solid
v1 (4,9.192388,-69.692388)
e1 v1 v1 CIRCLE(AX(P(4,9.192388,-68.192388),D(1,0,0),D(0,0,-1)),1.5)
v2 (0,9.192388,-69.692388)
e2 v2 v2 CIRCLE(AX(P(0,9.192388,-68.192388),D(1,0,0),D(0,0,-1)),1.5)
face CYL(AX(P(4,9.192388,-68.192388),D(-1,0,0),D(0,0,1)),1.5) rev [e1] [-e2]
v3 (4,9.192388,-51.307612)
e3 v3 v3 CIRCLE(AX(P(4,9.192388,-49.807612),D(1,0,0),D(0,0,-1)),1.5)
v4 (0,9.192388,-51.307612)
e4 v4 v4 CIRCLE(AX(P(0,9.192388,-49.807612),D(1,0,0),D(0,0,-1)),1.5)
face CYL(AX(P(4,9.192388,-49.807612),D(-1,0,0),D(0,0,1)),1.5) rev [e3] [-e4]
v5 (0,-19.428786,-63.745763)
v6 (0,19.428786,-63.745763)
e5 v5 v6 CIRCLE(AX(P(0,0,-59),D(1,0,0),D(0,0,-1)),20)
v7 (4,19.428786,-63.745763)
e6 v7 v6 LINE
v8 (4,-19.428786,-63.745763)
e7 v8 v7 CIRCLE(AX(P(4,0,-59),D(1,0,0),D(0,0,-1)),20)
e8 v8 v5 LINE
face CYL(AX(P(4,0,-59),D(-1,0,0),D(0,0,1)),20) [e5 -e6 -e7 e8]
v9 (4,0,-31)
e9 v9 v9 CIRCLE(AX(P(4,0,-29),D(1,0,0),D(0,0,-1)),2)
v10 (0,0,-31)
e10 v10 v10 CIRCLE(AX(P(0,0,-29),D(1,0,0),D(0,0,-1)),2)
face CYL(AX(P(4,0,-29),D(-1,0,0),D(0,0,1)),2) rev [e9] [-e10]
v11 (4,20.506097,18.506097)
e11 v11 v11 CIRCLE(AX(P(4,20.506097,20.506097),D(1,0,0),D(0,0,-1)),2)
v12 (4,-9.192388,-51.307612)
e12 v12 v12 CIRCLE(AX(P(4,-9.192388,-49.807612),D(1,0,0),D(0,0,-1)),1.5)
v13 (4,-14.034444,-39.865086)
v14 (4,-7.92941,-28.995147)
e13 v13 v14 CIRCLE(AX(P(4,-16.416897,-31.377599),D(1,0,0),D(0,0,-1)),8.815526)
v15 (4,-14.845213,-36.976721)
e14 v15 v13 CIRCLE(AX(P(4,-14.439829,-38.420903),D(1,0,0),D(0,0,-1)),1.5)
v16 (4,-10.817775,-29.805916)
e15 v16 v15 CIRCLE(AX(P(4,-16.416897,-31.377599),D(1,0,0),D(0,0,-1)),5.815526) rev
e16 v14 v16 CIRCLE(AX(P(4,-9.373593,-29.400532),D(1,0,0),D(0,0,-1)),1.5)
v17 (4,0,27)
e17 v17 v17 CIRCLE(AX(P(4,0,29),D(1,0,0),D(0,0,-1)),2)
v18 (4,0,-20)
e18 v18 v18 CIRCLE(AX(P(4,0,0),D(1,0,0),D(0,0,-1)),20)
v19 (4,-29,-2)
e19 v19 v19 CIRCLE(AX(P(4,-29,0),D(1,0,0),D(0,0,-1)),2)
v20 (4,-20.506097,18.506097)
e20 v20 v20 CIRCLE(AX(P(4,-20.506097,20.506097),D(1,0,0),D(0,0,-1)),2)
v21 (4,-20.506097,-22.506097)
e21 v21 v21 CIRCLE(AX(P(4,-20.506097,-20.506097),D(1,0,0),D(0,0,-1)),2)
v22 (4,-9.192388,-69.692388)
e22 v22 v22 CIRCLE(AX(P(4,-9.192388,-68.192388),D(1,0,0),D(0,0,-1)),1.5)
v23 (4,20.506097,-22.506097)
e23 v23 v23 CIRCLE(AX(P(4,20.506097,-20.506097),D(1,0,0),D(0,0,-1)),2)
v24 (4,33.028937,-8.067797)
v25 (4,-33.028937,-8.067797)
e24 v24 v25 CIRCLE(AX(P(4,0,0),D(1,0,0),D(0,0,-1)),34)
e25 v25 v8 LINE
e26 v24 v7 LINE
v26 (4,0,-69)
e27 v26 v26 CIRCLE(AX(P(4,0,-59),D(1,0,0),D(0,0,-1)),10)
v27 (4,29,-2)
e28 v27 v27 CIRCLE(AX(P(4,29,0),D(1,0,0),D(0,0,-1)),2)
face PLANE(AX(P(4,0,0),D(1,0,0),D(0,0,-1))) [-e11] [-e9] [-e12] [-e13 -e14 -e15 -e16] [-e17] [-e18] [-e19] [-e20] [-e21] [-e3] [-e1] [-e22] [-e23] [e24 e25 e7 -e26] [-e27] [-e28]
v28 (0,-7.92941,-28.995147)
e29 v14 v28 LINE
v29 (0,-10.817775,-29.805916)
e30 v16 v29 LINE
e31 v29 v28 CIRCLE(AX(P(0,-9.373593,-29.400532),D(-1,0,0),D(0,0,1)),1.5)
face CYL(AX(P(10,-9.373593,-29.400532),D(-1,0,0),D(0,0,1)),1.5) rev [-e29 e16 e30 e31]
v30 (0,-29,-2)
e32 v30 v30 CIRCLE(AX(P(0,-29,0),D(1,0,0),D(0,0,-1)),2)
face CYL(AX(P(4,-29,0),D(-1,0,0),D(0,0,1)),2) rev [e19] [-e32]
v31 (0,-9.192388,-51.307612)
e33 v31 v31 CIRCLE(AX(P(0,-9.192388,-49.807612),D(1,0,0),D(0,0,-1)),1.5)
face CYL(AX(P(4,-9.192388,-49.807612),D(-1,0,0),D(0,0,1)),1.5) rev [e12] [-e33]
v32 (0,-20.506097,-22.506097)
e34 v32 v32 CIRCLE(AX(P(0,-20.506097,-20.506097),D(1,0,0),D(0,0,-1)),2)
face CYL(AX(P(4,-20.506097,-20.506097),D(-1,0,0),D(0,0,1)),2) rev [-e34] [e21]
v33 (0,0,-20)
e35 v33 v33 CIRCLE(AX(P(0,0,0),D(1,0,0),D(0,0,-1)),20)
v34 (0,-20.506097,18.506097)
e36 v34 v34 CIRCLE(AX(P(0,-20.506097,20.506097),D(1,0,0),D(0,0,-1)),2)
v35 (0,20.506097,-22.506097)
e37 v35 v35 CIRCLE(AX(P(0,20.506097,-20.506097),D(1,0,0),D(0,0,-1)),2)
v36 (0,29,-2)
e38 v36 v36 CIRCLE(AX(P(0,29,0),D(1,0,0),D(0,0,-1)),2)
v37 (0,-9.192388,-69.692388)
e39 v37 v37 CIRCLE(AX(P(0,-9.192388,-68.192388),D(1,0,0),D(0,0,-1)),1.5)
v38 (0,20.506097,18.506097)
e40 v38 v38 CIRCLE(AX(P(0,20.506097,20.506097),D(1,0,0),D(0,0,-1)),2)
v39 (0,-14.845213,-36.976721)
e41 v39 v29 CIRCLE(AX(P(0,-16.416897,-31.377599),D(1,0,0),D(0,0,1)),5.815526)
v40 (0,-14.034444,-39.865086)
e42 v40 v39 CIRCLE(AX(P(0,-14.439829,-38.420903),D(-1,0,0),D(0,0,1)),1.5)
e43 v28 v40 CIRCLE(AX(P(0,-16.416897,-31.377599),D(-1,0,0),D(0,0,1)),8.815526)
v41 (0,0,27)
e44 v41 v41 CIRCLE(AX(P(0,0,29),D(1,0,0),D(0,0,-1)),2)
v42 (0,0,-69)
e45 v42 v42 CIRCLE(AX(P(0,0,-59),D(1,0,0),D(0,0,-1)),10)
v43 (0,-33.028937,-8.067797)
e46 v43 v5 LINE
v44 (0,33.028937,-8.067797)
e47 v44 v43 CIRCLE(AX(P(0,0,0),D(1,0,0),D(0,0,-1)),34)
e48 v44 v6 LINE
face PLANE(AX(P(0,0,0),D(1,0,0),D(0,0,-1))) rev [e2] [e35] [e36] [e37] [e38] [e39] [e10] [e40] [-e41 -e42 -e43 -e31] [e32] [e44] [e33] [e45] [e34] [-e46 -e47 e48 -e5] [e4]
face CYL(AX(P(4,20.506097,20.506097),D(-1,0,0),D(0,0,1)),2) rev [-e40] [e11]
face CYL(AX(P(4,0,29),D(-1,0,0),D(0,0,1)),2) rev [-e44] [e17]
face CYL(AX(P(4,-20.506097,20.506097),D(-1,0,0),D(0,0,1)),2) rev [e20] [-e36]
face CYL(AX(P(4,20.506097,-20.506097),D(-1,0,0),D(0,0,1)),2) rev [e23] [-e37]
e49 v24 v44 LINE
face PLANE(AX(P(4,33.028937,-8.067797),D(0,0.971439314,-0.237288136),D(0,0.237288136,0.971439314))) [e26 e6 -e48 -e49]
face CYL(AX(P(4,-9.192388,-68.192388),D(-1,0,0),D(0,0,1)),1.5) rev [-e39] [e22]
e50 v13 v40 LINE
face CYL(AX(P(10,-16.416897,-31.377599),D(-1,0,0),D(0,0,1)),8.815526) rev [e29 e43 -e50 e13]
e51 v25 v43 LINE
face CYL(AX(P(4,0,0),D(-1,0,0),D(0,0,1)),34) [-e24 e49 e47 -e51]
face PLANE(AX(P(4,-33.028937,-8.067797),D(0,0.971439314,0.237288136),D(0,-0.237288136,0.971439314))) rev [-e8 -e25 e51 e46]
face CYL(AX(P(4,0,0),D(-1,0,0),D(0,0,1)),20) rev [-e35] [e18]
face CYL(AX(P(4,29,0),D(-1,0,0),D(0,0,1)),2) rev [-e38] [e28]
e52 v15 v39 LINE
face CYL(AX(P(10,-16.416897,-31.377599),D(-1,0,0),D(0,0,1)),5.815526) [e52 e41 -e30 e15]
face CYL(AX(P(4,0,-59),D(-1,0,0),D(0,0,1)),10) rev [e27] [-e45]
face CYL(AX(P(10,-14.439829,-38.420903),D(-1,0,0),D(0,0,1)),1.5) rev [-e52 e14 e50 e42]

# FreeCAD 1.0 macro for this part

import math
import FreeCAD as App
import Part
import Sketcher

doc = App.newDocument("Part")
body = doc.addObject("PartDesign::Body", "Body")

sketch1 = body.newObject("Sketcher::SketchObject", "Sketch")
sketch1.AttachmentSupport = (doc.getObject("YZ_Plane"), [""])
sketch1.MapMode = "FlatFace"
sketch1.addGeometry(Part.LineSegment(App.Vector(19.4, -63.7, 0), App.Vector(33, -8.1, 0)), False)
sketch1.addGeometry(Part.ArcOfCircle(Part.Circle(App.Vector(0, 0, 0), App.Vector(0, 0, 1), 34), math.radians(-14), math.radians(194)), False)
sketch1.addGeometry(Part.LineSegment(App.Vector(-33, -8.1, 0), App.Vector(-19.4, -63.7, 0)), False)
sketch1.addGeometry(Part.ArcOfCircle(Part.Circle(App.Vector(0, -59, 0), App.Vector(0, 0, 1), 20), math.radians(-166), math.radians(-14)), False)
sketch1.addGeometry(Part.Circle(App.Vector(-20.5, -20.5, 0), App.Vector(0, 0, 1), 2), False)
sketch1.addGeometry(Part.Circle(App.Vector(-9.2, -68.2, 0), App.Vector(0, 0, 1), 1.5), False)
sketch1.addGeometry(Part.Circle(App.Vector(-9.2, -49.8, 0), App.Vector(0, 0, 1), 1.5), False)
sketch1.addGeometry(Part.Circle(App.Vector(-29, 0, 0), App.Vector(0, 0, 1), 2), False)
sketch1.addGeometry(Part.Circle(App.Vector(-20.5, 20.5, 0), App.Vector(0, 0, 1), 2), False)
sketch1.addGeometry(Part.Circle(App.Vector(0, -59, 0), App.Vector(0, 0, 1), 10), False)
sketch1.addGeometry(Part.Circle(App.Vector(9.2, -68.2, 0), App.Vector(0, 0, 1), 1.5), False)
sketch1.addGeometry(Part.Circle(App.Vector(9.2, -49.8, 0), App.Vector(0, 0, 1), 1.5), False)
sketch1.addGeometry(Part.Circle(App.Vector(0, -29, 0), App.Vector(0, 0, 1), 2), False)
sketch1.addGeometry(Part.Circle(App.Vector(20.5, -20.5, 0), App.Vector(0, 0, 1), 2), False)
sketch1.addGeometry(Part.Circle(App.Vector(0, 0, 0), App.Vector(0, 0, 1), 20), False)
sketch1.addGeometry(Part.Circle(App.Vector(0, 29, 0), App.Vector(0, 0, 1), 2), False)
sketch1.addGeometry(Part.Circle(App.Vector(29, 0, 0), App.Vector(0, 0, 1), 2), False)
sketch1.addGeometry(Part.Circle(App.Vector(20.5, 20.5, 0), App.Vector(0, 0, 1), 2), False)
sketch1.addConstraint(Sketcher.Constraint("Tangent", 0, 2, 1, 1))
sketch1.addConstraint(Sketcher.Constraint("Tangent", 1, 2, 2, 1))
sketch1.addConstraint(Sketcher.Constraint("Tangent", 2, 2, 3, 1))
sketch1.addConstraint(Sketcher.Constraint("Tangent", 3, 2, 0, 1))
sketch1.addConstraint(Sketcher.Constraint("Coincident", 1, 3, -1, 1))
sketch1.addConstraint(Sketcher.Constraint("Coincident", 14, 3, -1, 1))
sketch1.addConstraint(Sketcher.Constraint("Coincident", 9, 3, 3, 3))
sketch1.addConstraint(Sketcher.Constraint("Equal", 5, 6))
sketch1.addConstraint(Sketcher.Constraint("Equal", 4, 7))
sketch1.addConstraint(Sketcher.Constraint("Equal", 7, 8))
sketch1.addConstraint(Sketcher.Constraint("Equal", 6, 10))
sketch1.addConstraint(Sketcher.Constraint("Equal", 10, 11))
sketch1.addConstraint(Sketcher.Constraint("Equal", 8, 12))
sketch1.addConstraint(Sketcher.Constraint("Equal", 12, 13))
sketch1.addConstraint(Sketcher.Constraint("Equal", 3, 14))
sketch1.addConstraint(Sketcher.Constraint("Equal", 13, 15))
sketch1.addConstraint(Sketcher.Constraint("Equal", 15, 16))
sketch1.addConstraint(Sketcher.Constraint("Equal", 16, 17))
sketch1.addConstraint(Sketcher.Constraint("Symmetric", 8, 3, 13, 3, -1, 1))
sketch1.addConstraint(Sketcher.Constraint("Symmetric", 12, 3, 15, 3, -1, 1))
sketch1.addConstraint(Sketcher.Constraint("Symmetric", 7, 3, 16, 3, -1, 1))
sketch1.addConstraint(Sketcher.Constraint("Symmetric", 4, 3, 17, 3, -1, 1))
sketch1.addConstraint(Sketcher.Constraint("Symmetric", 5, 3, 10, 3, -2))
sketch1.addConstraint(Sketcher.Constraint("Symmetric", 6, 3, 11, 3, -2))
sketch1.addConstraint(Sketcher.Constraint("Symmetric", 4, 3, 13, 3, -2))
sketch1.addConstraint(Sketcher.Constraint("PointOnObject", 3, 3, -2))
sketch1.addConstraint(Sketcher.Constraint("PointOnObject", 7, 3, -1))
sketch1.addConstraint(Sketcher.Constraint("PointOnObject", 12, 3, -2))
sketch1.addConstraint(Sketcher.Constraint("Vertical", 5, 3, 6, 3))
sketch1.addConstraint(Sketcher.Constraint("Diameter", 4, 4.0))
sketch1.addConstraint(Sketcher.Constraint("Diameter", 5, 3.0))
sketch1.addConstraint(Sketcher.Constraint("Diameter", 9, 20.0))
sketch1.addConstraint(Sketcher.Constraint("Diameter", 14, 40.0))
sketch1.addConstraint(Sketcher.Constraint("Radius", 1, 34.0))
sketch1.addConstraint(Sketcher.Constraint("DistanceY", 3, 3, -1, 1, 59.0))
sketch1.addConstraint(Sketcher.Constraint("DistanceX", 7, 3, -1, 1, 29.0))
sketch1.addConstraint(Sketcher.Constraint("DistanceY", 12, 3, -1, 1, 29.0))
sketch1.addConstraint(Sketcher.Constraint("DistanceY", 13, 3, 0, 2, 12.4383))
sketch1.addConstraint(Sketcher.Constraint("DistanceX", 2, 2, 5, 3, 10.236398))
sketch1.addConstraint(Sketcher.Constraint("DistanceY", 5, 3, -1, 1, 68.192388))
sketch1.addConstraint(Sketcher.Constraint("DistanceY", 6, 3, -1, 1, 49.807612))
sketch1.addConstraint(Sketcher.Constraint("DistanceX", 4, 3, 5, 3, 11.313708))
pad1 = body.newObject("PartDesign::Pad", "Pad")
pad1.Profile = sketch1
pad1.Length = 4

sketch2 = body.newObject("Sketcher::SketchObject", "Sketch001")
sketch2.AttachmentSupport = (doc.getObject("YZ_Plane"), [""])
sketch2.MapMode = "FlatFace"
sketch2.addGeometry(Part.ArcOfCircle(Part.Circle(App.Vector(-16.4, -31.4, 0), App.Vector(0, 0, 1), 8.8), math.radians(-74), math.radians(16)), False)
sketch2.addGeometry(Part.ArcOfCircle(Part.Circle(App.Vector(-14.4, -38.4, 0), App.Vector(0, 0, 1), 1.5), math.radians(106), math.radians(286)), False)
sketch2.addGeometry(Part.ArcOfCircle(Part.Circle(App.Vector(-16.4, -31.4, 0), App.Vector(0, 0, 1), 5.8), math.radians(-74), math.radians(16)), False)
sketch2.addGeometry(Part.ArcOfCircle(Part.Circle(App.Vector(-9.4, -29.4, 0), App.Vector(0, 0, 1), 1.5), math.radians(16), math.radians(196)), False)
sketch2.addConstraint(Sketcher.Constraint("Tangent", 0, 1, 1, 2))
sketch2.addConstraint(Sketcher.Constraint("Tangent", 1, 1, 2, 1))
sketch2.addConstraint(Sketcher.Constraint("Tangent", 2, 2, 3, 2))
sketch2.addConstraint(Sketcher.Constraint("Tangent", 3, 1, 0, 2))
sketch2.addConstraint(Sketcher.Constraint("Coincident", 2, 3, 0, 3))
sketch2.addConstraint(Sketcher.Constraint("Radius", 1, 1.5))
sketch2.addConstraint(Sketcher.Constraint("Radius", 0, 8.815526))
sketch2.addConstraint(Sketcher.Constraint("DistanceY", 0, 3, -1, 1, 31.377599))
sketch2.addConstraint(Sketcher.Constraint("DistanceX", 1, 3, -1, 1, 14.439829))
sketch2.addConstraint(Sketcher.Constraint("DistanceY", 3, 3, -1, 1, 29.400532))
sketch2.addConstraint(Sketcher.Constraint("DistanceY", 1, 1, -1, 1, 36.976721))
pocket1 = body.newObject("PartDesign::Pocket", "Pocket")
pocket1.Profile = sketch2
pocket1.Length = 10
pocket1.Reversed = True

doc.recompute()
